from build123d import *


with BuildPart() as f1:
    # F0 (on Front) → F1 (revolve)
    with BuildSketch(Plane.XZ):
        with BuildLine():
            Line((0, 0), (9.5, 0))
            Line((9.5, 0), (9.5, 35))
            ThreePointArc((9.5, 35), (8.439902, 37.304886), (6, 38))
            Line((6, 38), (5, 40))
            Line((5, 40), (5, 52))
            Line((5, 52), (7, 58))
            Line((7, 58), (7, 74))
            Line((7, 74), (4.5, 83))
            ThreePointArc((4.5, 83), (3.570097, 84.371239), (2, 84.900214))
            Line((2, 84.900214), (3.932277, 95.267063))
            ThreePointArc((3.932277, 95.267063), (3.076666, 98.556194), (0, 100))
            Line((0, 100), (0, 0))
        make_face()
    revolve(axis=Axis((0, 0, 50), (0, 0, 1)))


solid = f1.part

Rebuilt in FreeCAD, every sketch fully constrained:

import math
import FreeCAD as App
import Part
import Sketcher

doc = App.newDocument("Part")
body = doc.addObject("PartDesign::Body", "Body")

sketch1 = body.newObject("Sketcher::SketchObject", "Sketch")
sketch1.AttachmentSupport = (doc.getObject("XZ_Plane"), [""])
sketch1.MapMode = "FlatFace"
sketch1.addGeometry(Part.LineSegment(App.Vector(0, 0, 0), App.Vector(9.5, 0, 0)), False)
sketch1.addGeometry(Part.LineSegment(App.Vector(9.5, 0, 0), App.Vector(9.5, 35, 0)), False)
sketch1.addGeometry(Part.ArcOfCircle(Part.Circle(App.Vector(6.5, 35, 0), App.Vector(0, 0, 1), 3), math.radians(0), math.radians(99)), False)
sketch1.addGeometry(Part.LineSegment(App.Vector(6, 38, 0), App.Vector(5, 40, 0)), False)
sketch1.addGeometry(Part.LineSegment(App.Vector(5, 40, 0), App.Vector(5, 52, 0)), False)
sketch1.addGeometry(Part.LineSegment(App.Vector(5, 52, 0), App.Vector(7, 58, 0)), False)
sketch1.addGeometry(Part.LineSegment(App.Vector(7, 58, 0), App.Vector(7, 74, 0)), False)
sketch1.addGeometry(Part.LineSegment(App.Vector(7, 74, 0), App.Vector(4.5, 83, 0)), False)
sketch1.addGeometry(Part.ArcOfCircle(Part.Circle(App.Vector(2, 82.3, 0), App.Vector(0, 0, 1), 2.6), math.radians(16), math.radians(90)), False)
sketch1.addGeometry(Part.LineSegment(App.Vector(2, 84.9, 0), App.Vector(3.9, 95.3, 0)), False)
sketch1.addGeometry(Part.ArcOfCircle(Part.Circle(App.Vector(0, 96, 0), App.Vector(0, 0, 1), 4), math.radians(-11), math.radians(90)), False)
sketch1.addGeometry(Part.LineSegment(App.Vector(0, 100, 0), App.Vector(0, 0, 0)), False)
sketch1.addConstraint(Sketcher.Constraint("Coincident", 0, 2, 1, 1))
sketch1.addConstraint(Sketcher.Constraint("Tangent", 1, 2, 2, 1))
sketch1.addConstraint(Sketcher.Constraint("Coincident", 2, 2, 3, 1))
sketch1.addConstraint(Sketcher.Constraint("Coincident", 3, 2, 4, 1))
sketch1.addConstraint(Sketcher.Constraint("Coincident", 4, 2, 5, 1))
sketch1.addConstraint(Sketcher.Constraint("Coincident", 5, 2, 6, 1))
sketch1.addConstraint(Sketcher.Constraint("Coincident", 6, 2, 7, 1))
sketch1.addConstraint(Sketcher.Constraint("Tangent", 7, 2, 8, 1))
sketch1.addConstraint(Sketcher.Constraint("Coincident", 8, 2, 9, 1))
sketch1.addConstraint(Sketcher.Constraint("Tangent", 9, 2, 10, 1))
sketch1.addConstraint(Sketcher.Constraint("Coincident", 10, 2, 11, 1))
sketch1.addConstraint(Sketcher.Constraint("Coincident", 11, 2, 0, 1))
sketch1.addConstraint(Sketcher.Constraint("Horizontal", 0))
sketch1.addConstraint(Sketcher.Constraint("Vertical", 1))
sketch1.addConstraint(Sketcher.Constraint("Vertical", 4))
sketch1.addConstraint(Sketcher.Constraint("Vertical", 6))
sketch1.addConstraint(Sketcher.Constraint("Vertical", 11))
sketch1.addConstraint(Sketcher.Constraint("Coincident", 11, 2, -1, 1))
sketch1.addConstraint(Sketcher.Constraint("PointOnObject", 10, 3, -2))
sketch1.addConstraint(Sketcher.Constraint("Radius", 10, 4.0))
sketch1.addConstraint(Sketcher.Constraint("DistanceY", 1, 1, 1, 2, 35.0))
sketch1.addConstraint(Sketcher.Constraint("DistanceY", 4, 1, 4, 2, 12.0))
sketch1.addConstraint(Sketcher.Constraint("DistanceY", 6, 1, 6, 2, 16.0))
sketch1.addConstraint(Sketcher.Constraint("DistanceY", 11, 2, 11, 1, 100.0))
sketch1.addConstraint(Sketcher.Constraint("DistanceX", 0, 1, 0, 2, 9.5))
sketch1.addConstraint(Sketcher.Constraint("DistanceX", -1, 1, 8, 3, 2.0))
sketch1.addConstraint(Sketcher.Constraint("DistanceX", -1, 1, 2, 2, 6.0))
sketch1.addConstraint(Sketcher.Constraint("DistanceY", -1, 1, 2, 2, 38.0))
sketch1.addConstraint(Sketcher.Constraint("DistanceX", -1, 1, 3, 2, 5.0))
sketch1.addConstraint(Sketcher.Constraint("DistanceY", -1, 1, 3, 2, 40.0))
sketch1.addConstraint(Sketcher.Constraint("DistanceX", -1, 1, 5, 2, 7.0))
sketch1.addConstraint(Sketcher.Constraint("DistanceY", -1, 1, 5, 2, 58.0))
sketch1.addConstraint(Sketcher.Constraint("DistanceY", -1, 1, 7, 2, 83.0))
sketch1.addConstraint(Sketcher.Constraint("DistanceX", -1, 1, 8, 2, 2.0))
sketch1.addConstraint(Sketcher.Constraint("DistanceX", -1, 1, 7, 2, 4.5))
revolution = body.newObject("PartDesign::Revolution", "Revolution")
revolution.Profile = sketch1
revolution.ReferenceAxis = (sketch1, ["V_Axis"])
revolution.Angle = 360

doc.recompute()
